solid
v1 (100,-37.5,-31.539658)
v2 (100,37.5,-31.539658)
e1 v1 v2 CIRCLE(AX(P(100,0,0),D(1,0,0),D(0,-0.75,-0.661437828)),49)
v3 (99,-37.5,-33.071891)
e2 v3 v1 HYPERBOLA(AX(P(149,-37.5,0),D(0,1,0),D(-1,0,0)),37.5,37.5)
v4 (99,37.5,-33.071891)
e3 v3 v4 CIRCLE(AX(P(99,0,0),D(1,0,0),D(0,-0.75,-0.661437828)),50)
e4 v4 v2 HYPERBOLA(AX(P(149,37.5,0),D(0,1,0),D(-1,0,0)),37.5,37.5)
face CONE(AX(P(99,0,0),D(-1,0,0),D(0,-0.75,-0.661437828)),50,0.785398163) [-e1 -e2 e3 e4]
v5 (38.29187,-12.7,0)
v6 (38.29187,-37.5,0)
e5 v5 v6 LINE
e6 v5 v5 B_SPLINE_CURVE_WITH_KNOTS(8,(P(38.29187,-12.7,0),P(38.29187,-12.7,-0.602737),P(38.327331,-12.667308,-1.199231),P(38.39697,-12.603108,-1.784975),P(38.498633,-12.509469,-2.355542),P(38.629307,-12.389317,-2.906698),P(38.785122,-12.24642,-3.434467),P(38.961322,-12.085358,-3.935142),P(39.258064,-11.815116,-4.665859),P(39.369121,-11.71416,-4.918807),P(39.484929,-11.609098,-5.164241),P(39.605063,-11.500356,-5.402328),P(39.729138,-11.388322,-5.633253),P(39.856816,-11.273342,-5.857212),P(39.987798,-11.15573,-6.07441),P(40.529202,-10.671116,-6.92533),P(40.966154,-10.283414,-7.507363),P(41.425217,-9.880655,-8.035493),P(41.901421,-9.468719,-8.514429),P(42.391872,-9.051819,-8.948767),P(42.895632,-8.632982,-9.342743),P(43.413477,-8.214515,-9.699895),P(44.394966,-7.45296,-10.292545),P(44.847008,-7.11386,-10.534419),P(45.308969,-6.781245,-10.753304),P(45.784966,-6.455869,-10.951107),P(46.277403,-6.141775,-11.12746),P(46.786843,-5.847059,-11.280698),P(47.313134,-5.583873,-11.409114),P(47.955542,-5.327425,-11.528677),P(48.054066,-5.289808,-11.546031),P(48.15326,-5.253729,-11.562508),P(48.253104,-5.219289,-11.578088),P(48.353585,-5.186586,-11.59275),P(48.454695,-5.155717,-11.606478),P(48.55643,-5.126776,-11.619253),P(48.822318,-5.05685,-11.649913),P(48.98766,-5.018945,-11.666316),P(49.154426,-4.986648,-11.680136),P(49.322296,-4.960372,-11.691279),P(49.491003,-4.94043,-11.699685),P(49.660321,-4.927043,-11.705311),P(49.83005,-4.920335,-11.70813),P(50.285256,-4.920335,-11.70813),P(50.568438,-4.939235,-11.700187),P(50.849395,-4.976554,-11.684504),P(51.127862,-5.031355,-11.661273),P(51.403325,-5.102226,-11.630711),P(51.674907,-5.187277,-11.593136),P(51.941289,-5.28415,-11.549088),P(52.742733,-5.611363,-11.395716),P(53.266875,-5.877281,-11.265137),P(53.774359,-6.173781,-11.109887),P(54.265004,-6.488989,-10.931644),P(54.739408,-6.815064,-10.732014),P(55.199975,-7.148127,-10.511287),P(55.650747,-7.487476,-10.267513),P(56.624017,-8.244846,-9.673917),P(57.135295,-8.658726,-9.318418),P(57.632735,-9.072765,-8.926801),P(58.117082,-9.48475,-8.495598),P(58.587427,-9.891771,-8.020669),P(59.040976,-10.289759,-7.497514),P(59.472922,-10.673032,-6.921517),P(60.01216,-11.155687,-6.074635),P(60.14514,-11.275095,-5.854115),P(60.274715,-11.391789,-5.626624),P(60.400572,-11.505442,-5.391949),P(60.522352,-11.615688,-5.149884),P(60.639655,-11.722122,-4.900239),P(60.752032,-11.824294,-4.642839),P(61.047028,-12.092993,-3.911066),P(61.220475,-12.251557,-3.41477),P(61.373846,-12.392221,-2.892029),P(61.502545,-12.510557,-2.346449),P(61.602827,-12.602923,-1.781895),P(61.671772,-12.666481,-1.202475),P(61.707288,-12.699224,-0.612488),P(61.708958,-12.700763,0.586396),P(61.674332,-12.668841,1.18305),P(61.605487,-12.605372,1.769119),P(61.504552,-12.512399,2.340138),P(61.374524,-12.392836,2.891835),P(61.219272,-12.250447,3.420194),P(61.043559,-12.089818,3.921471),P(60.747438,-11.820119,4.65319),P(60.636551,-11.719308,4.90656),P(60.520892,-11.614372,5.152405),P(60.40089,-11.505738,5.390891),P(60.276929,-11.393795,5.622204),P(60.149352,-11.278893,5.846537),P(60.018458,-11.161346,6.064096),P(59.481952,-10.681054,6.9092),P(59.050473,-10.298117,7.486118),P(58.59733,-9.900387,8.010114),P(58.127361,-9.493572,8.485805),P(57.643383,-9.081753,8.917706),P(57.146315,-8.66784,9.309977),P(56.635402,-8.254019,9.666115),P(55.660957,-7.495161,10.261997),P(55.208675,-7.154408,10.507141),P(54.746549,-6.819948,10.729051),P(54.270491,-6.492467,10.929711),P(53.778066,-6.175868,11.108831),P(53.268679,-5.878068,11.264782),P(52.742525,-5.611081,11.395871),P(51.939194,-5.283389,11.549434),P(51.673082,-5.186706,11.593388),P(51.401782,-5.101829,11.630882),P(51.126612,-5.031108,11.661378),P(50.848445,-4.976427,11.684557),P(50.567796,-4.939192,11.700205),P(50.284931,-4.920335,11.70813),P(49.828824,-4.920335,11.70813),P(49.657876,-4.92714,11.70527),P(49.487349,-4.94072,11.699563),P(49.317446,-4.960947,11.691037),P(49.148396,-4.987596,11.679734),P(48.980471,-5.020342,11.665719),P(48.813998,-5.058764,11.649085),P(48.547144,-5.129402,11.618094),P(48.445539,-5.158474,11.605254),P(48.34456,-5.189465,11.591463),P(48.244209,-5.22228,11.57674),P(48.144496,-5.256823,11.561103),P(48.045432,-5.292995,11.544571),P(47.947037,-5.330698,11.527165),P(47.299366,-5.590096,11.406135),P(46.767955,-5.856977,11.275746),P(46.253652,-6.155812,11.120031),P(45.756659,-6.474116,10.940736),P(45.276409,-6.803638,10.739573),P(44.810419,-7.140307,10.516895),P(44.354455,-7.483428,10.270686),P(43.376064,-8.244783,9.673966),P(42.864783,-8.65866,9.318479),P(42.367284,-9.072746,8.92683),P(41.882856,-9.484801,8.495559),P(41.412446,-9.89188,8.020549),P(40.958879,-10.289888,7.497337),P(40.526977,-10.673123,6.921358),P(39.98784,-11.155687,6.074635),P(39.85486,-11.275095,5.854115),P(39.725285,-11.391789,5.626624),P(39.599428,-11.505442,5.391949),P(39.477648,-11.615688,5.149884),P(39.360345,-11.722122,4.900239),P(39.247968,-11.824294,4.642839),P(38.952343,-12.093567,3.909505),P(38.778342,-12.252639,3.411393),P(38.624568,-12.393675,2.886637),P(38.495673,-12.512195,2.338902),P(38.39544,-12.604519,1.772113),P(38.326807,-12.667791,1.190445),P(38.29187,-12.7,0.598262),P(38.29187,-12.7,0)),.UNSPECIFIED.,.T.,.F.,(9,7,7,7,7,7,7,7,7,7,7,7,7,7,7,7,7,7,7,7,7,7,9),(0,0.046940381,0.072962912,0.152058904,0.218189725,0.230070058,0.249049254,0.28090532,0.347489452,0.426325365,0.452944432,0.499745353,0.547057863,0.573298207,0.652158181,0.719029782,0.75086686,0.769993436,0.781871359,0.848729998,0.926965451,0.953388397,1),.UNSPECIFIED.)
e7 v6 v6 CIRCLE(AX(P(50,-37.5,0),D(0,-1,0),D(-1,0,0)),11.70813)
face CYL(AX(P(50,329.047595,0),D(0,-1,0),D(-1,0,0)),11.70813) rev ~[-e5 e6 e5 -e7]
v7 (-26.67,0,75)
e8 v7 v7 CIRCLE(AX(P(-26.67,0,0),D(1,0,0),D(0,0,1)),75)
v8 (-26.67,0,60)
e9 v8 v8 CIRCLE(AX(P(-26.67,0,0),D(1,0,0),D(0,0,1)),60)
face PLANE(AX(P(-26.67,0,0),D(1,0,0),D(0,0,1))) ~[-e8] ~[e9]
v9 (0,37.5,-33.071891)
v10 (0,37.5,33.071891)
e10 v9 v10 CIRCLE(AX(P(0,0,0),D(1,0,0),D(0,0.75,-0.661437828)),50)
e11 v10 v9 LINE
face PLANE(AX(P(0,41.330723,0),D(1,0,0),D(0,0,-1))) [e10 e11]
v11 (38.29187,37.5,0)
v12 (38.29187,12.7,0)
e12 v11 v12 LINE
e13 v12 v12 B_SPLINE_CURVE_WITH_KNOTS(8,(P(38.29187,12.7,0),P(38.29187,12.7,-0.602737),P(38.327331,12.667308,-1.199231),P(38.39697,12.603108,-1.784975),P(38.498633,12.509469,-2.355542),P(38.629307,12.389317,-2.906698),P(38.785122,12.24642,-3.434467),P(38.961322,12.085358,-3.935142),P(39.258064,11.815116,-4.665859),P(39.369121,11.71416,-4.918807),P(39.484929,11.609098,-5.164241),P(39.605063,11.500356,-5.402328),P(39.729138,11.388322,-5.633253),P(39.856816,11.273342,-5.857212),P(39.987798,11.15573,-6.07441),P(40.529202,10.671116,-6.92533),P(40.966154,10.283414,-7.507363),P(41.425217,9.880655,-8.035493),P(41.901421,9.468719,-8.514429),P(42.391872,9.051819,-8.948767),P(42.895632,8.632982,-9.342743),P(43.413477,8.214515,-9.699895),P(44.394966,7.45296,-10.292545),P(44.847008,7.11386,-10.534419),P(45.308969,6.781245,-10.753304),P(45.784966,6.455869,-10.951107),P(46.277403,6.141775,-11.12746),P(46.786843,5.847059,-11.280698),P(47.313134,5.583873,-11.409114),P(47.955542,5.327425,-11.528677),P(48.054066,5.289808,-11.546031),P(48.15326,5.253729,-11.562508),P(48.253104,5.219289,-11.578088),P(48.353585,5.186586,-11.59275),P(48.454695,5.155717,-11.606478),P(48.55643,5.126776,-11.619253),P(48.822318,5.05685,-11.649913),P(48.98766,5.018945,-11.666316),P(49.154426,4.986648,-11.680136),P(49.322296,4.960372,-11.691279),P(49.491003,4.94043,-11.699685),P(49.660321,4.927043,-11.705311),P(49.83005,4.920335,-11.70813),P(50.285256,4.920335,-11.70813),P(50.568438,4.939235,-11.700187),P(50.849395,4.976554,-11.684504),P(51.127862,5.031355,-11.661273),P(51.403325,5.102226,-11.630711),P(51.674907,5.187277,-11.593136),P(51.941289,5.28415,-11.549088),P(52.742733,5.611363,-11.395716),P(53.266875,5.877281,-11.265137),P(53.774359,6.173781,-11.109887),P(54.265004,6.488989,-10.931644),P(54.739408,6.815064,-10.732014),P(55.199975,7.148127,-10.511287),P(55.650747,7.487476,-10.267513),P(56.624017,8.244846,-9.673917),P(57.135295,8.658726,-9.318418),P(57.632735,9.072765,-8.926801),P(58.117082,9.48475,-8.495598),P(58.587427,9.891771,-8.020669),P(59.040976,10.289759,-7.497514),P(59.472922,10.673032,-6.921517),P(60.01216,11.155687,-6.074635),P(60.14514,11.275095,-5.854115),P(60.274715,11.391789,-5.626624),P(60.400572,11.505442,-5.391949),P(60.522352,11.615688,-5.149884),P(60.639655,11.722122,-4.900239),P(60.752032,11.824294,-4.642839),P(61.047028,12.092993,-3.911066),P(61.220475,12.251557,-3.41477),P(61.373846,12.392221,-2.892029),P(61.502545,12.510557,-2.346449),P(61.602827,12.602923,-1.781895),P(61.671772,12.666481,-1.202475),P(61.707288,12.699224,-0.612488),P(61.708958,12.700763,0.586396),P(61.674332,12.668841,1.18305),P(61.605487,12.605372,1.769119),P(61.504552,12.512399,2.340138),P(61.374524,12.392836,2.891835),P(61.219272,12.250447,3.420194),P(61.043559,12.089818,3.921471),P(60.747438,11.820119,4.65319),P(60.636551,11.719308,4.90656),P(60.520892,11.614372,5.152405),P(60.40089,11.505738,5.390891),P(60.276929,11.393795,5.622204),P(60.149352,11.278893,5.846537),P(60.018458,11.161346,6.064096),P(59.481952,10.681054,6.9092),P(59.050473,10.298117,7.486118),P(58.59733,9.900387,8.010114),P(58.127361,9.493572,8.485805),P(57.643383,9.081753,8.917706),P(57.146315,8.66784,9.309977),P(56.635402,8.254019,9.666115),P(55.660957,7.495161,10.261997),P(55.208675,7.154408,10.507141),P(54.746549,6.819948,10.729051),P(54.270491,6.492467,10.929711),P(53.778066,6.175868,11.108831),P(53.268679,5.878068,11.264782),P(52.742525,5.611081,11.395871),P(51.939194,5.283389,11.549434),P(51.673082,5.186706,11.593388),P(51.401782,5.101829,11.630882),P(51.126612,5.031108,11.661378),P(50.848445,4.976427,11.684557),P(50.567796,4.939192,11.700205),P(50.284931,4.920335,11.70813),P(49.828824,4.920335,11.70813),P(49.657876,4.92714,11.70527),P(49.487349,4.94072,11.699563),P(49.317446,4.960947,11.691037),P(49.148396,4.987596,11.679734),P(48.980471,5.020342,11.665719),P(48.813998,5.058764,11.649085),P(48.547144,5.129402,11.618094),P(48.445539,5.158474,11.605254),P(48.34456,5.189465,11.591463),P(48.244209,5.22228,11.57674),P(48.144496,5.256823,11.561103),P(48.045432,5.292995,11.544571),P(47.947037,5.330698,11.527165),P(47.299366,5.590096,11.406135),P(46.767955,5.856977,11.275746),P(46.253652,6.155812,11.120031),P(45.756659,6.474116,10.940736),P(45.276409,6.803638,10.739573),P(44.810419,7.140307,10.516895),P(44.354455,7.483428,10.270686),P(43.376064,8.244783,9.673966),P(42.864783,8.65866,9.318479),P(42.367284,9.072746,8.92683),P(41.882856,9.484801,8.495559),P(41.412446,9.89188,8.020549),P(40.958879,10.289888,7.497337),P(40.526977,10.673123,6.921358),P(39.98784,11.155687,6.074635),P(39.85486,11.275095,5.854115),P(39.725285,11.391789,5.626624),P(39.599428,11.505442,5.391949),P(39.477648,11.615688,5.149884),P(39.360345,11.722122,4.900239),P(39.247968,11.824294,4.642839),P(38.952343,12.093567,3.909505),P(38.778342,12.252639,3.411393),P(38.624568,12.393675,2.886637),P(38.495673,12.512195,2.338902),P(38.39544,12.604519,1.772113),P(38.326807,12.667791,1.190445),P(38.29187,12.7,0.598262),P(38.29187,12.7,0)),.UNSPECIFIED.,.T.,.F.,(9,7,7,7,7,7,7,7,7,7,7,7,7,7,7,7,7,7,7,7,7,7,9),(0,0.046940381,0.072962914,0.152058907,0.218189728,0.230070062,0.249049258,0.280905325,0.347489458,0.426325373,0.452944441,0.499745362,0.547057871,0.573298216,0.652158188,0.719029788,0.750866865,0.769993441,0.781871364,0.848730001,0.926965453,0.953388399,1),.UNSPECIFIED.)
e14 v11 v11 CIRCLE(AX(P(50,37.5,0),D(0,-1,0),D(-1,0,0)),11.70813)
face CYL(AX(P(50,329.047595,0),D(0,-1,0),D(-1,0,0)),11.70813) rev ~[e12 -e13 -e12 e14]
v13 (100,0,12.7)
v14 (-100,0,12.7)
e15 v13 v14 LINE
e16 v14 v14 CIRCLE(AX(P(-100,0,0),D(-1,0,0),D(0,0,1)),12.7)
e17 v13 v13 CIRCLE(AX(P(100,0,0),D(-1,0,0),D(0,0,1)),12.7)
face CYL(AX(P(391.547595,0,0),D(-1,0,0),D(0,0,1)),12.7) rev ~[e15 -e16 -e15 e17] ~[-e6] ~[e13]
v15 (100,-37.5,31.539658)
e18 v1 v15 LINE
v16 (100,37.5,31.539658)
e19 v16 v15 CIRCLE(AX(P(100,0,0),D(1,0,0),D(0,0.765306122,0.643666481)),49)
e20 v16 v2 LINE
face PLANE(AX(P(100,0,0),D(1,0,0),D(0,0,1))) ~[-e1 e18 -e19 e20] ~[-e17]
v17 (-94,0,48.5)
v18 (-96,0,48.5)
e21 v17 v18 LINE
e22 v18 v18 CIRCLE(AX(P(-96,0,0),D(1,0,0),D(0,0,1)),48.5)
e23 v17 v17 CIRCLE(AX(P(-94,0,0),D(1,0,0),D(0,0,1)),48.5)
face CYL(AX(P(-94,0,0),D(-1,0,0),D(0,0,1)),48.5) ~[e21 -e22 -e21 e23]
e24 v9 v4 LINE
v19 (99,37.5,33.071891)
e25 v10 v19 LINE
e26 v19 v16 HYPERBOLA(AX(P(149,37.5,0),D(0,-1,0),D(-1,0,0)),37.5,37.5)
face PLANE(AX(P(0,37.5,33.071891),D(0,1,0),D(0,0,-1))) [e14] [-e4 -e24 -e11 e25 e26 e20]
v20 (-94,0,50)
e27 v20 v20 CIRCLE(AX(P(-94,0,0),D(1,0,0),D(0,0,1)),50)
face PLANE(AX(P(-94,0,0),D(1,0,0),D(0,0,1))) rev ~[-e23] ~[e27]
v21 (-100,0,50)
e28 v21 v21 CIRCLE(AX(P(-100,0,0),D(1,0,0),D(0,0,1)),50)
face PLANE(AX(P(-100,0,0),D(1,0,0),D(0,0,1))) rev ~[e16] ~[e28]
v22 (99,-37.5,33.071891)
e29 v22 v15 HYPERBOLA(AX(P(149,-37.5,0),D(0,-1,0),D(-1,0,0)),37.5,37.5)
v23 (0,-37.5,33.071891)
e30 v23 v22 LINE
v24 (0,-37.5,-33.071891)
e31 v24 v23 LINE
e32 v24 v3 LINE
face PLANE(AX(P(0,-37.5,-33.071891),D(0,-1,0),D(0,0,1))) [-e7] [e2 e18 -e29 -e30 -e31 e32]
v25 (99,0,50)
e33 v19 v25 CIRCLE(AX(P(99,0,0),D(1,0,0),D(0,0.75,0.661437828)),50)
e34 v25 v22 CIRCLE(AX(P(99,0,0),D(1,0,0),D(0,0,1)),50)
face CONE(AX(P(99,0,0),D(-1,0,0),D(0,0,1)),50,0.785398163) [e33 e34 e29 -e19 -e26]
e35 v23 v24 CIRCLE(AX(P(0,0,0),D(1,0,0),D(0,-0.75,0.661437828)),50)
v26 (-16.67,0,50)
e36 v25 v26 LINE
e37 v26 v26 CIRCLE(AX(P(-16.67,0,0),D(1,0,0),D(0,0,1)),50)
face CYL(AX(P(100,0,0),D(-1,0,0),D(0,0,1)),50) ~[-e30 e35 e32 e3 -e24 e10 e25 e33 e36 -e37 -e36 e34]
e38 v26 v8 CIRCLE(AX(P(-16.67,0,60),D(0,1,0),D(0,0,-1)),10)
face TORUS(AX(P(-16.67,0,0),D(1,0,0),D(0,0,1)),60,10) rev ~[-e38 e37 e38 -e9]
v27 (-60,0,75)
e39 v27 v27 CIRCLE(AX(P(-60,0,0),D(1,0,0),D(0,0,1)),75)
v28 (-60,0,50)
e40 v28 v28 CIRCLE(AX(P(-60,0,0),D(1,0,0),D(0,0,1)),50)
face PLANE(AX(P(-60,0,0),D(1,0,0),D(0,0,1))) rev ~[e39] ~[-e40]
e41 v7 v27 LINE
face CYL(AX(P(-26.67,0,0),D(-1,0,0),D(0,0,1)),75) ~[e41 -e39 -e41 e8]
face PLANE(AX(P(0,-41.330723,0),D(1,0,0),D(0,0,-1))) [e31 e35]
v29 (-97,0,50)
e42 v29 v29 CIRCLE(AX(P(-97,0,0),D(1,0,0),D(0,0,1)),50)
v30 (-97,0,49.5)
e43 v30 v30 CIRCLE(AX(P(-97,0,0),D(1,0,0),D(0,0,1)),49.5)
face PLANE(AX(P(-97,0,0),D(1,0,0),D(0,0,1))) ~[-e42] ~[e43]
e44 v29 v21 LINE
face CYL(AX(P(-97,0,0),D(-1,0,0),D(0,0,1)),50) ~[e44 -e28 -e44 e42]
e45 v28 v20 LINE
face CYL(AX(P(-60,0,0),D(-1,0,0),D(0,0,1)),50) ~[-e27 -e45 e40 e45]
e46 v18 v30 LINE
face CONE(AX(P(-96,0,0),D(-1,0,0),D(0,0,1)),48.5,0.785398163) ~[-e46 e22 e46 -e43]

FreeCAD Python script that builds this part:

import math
import FreeCAD as App
import Part
import Sketcher


def edges_at(feature, points):
    """Names of the edges that pass closest to the given points."""
    edges = feature.Shape.Edges
    near = lambda p: min(range(len(edges)), key=lambda i: edges[i].distToShape(Part.Vertex(*p))[0])
    return sorted({f"Edge{near(p) + 1}" for p in points})

doc = App.newDocument("Part")
body = doc.addObject("PartDesign::Body", "Body")

# Sketch on XY plane
sketch1 = body.newObject("Sketcher::SketchObject", "Sketch")
sketch1.AttachmentSupport = (doc.getObject("XY_Plane"), [""])
sketch1.MapMode = "FlatFace"
sketch1.addGeometry([
    Part.LineSegment(App.Vector(-94, 50, 0), App.Vector(-94, 48.5, 0)),  # 0
    Part.LineSegment(App.Vector(-94, 48.5, 0), App.Vector(-97, 48.5, 0)),  # 1
    Part.LineSegment(App.Vector(-97, 48.5, 0), App.Vector(-97, 50, 0)),  # 2
    Part.LineSegment(App.Vector(-97, 50, 0), App.Vector(-100, 50, 0)),  # 3
    Part.LineSegment(App.Vector(-100, 50, 0), App.Vector(-100, 0, 0)),  # 4
    Part.LineSegment(App.Vector(-100, 0, 0), App.Vector(100, 0, 0)),  # 5
    Part.LineSegment(App.Vector(100, 0, 0), App.Vector(100, 50, 0)),  # 6
    Part.LineSegment(App.Vector(100, 50, 0), App.Vector(-16.7, 50, 0)),  # 7
    Part.ArcOfCircle(Part.Circle(App.Vector(-16.7, 60, 0), App.Vector(0, 0, 1), 10), math.radians(180), math.radians(270)),  # 8
    Part.LineSegment(App.Vector(-26.7, 60, 0), App.Vector(-26.7, 75, 0)),  # 9
    Part.LineSegment(App.Vector(-26.7, 75, 0), App.Vector(-60, 75, 0)),  # 10
    Part.LineSegment(App.Vector(-60, 75, 0), App.Vector(-60, 50, 0)),  # 11
    Part.LineSegment(App.Vector(-60, 50, 0), App.Vector(-94, 50, 0)),  # 12
], False)
sketch1.addConstraint([
    Sketcher.Constraint("Coincident", 0, 2, 1, 1),
    Sketcher.Constraint("Coincident", 1, 2, 2, 1),
    Sketcher.Constraint("Coincident", 2, 2, 3, 1),
    Sketcher.Constraint("Coincident", 3, 2, 4, 1),
    Sketcher.Constraint("Coincident", 4, 2, 5, 1),
    Sketcher.Constraint("Coincident", 5, 2, 6, 1),
    Sketcher.Constraint("Coincident", 6, 2, 7, 1),
    Sketcher.Constraint("Tangent", 7, 2, 8, 2),
    Sketcher.Constraint("Tangent", 8, 1, 9, 1),
    Sketcher.Constraint("Coincident", 9, 2, 10, 1),
    Sketcher.Constraint("Coincident", 10, 2, 11, 1),
    Sketcher.Constraint("Coincident", 11, 2, 12, 1),
    Sketcher.Constraint("Coincident", 12, 2, 0, 1),
    Sketcher.Constraint("Vertical", 0),
    Sketcher.Constraint("Horizontal", 1),
    Sketcher.Constraint("Vertical", 2),
    Sketcher.Constraint("Horizontal", 3),
    Sketcher.Constraint("Vertical", 4),
    Sketcher.Constraint("Horizontal", 5),
    Sketcher.Constraint("Vertical", 6),
    Sketcher.Constraint("Horizontal", 7),
    Sketcher.Constraint("Vertical", 9),
    Sketcher.Constraint("Horizontal", 10),
    Sketcher.Constraint("Vertical", 11),
    Sketcher.Constraint("Horizontal", 12),
    Sketcher.Constraint("Symmetric", 4, 2, 5, 2, -1, 1),
    Sketcher.Constraint("Horizontal", 3, 2, 6, 2),
    Sketcher.Constraint("Horizontal", 7, 2, 11, 2),
    Sketcher.Constraint("Equal", 1, 3),
    Sketcher.Constraint("Radius", 8, 10.0),
    Sketcher.Constraint("DistanceX", 1, 2, 1, 1, 3.0),
    Sketcher.Constraint("DistanceX", 5, 1, 5, 2, 200.0),
    Sketcher.Constraint("DistanceX", 12, 2, 12, 1, 34.0),
    Sketcher.Constraint("DistanceY", 4, 2, 4, 1, 50.0),
    Sketcher.Constraint("DistanceY", 9, 1, 9, 2, 15.0),
    Sketcher.Constraint("DistanceY", 0, 2, 0, 1, 1.5),
    Sketcher.Constraint("DistanceX", 7, 2, 7, 1, 116.67),
])
revolution = body.newObject("PartDesign::Revolution", "Revolution")
revolution.Profile = sketch1
revolution.ReferenceAxis = (sketch1, ["H_Axis"])
revolution.Angle = 360

# Sketch on YZ plane
sketch2 = body.newObject("Sketcher::SketchObject", "Sketch001")
sketch2.AttachmentSupport = (doc.getObject("YZ_Plane"), [""])
sketch2.MapMode = "FlatFace"
sketch2.addGeometry([
    Part.ArcOfCircle(Part.Circle(App.Vector(0, 0, 0), App.Vector(0, 0, 1), 50), math.radians(-41), math.radians(41)),
    Part.LineSegment(App.Vector(38, 33, 0), App.Vector(38, -33, 0)),
    Part.LineSegment(App.Vector(-38, -33, 0), App.Vector(-38, 33, 0)),
    Part.ArcOfCircle(Part.Circle(App.Vector(0, 0, 0), App.Vector(0, 0, 1), 50), math.radians(139), math.radians(221)),
], False)
sketch2.addConstraint([
    Sketcher.Constraint("Coincident", 0, 1, 1, 2),
    Sketcher.Constraint("Coincident", 1, 1, 0, 2),
    Sketcher.Constraint("Coincident", 2, 1, 3, 2),
    Sketcher.Constraint("Coincident", 3, 1, 2, 2),
    Sketcher.Constraint("Vertical", 1),
    Sketcher.Constraint("Vertical", 2),
    Sketcher.Constraint("Coincident", 0, 3, -1, 1),
    Sketcher.Constraint("Coincident", 3, 3, -1, 1),
    Sketcher.Constraint("Equal", 0, 3),
    Sketcher.Constraint("Horizontal", 0, 1, 2, 1),
    Sketcher.Constraint("Radius", 0, 50.0),
    Sketcher.Constraint("DistanceX", 2, 1, 0, 1, 75.0),
])
pocket1 = body.newObject("PartDesign::Pocket", "Pocket")
pocket1.Profile = sketch2
pocket1.Length = 100
pocket1.Reversed = True

# Sketch on XZ plane
sketch3 = body.newObject("Sketcher::SketchObject", "Sketch002")
sketch3.AttachmentSupport = (doc.getObject("XZ_Plane"), [""])
sketch3.MapMode = "FlatFace"
sketch3.AttachmentOffset = App.Placement(App.Vector(0, 0, -37.5), App.Rotation())
sketch3.addGeometry(Part.Circle(App.Vector(50, 0, 0), App.Vector(0, 0, 1), 12), False)
sketch3.addConstraint([
    Sketcher.Constraint("PointOnObject", 0, 3, -1),
    Sketcher.Constraint("DistanceX", -1, 1, 0, 3, 50.0),
    Sketcher.Constraint("Diameter", 0, 23.41626),
])
doc.recompute()
hole = body.newObject("PartDesign::Hole", "Hole")
hole.Profile = sketch3
hole.ThreadType = "None"
hole.Diameter = 23.41626
hole.DepthType = "ThroughAll"
hole.Reversed = True

# Sketch on YZ plane
sketch4 = body.newObject("Sketcher::SketchObject", "Sketch003")
sketch4.AttachmentSupport = (doc.getObject("YZ_Plane"), [""])
sketch4.MapMode = "FlatFace"
sketch4.AttachmentOffset = App.Placement(App.Vector(0, 0, 100), App.Rotation())
sketch4.addGeometry(Part.Circle(App.Vector(0, 0, 0), App.Vector(0, 0, 1), 13), False)
sketch4.addConstraint([
    Sketcher.Constraint("Coincident", 0, 3, -1, 1),
    Sketcher.Constraint("Diameter", 0, 25.4),
])
doc.recompute()
hole2 = body.newObject("PartDesign::Hole", "Hole001")
hole2.Profile = sketch4
hole2.ThreadType = "None"
hole2.Diameter = 25.4
hole2.DepthType = "ThroughAll"
doc.recompute()

chamfer = body.newObject("PartDesign::Chamfer", "Chamfer")
chamfer.Base = (hole2, edges_at(hole2, [(-97, 0, -48.5), (100, 0, -50), (100, 20.572, 45.572)]))
chamfer.Size = 1

doc.recompute()
